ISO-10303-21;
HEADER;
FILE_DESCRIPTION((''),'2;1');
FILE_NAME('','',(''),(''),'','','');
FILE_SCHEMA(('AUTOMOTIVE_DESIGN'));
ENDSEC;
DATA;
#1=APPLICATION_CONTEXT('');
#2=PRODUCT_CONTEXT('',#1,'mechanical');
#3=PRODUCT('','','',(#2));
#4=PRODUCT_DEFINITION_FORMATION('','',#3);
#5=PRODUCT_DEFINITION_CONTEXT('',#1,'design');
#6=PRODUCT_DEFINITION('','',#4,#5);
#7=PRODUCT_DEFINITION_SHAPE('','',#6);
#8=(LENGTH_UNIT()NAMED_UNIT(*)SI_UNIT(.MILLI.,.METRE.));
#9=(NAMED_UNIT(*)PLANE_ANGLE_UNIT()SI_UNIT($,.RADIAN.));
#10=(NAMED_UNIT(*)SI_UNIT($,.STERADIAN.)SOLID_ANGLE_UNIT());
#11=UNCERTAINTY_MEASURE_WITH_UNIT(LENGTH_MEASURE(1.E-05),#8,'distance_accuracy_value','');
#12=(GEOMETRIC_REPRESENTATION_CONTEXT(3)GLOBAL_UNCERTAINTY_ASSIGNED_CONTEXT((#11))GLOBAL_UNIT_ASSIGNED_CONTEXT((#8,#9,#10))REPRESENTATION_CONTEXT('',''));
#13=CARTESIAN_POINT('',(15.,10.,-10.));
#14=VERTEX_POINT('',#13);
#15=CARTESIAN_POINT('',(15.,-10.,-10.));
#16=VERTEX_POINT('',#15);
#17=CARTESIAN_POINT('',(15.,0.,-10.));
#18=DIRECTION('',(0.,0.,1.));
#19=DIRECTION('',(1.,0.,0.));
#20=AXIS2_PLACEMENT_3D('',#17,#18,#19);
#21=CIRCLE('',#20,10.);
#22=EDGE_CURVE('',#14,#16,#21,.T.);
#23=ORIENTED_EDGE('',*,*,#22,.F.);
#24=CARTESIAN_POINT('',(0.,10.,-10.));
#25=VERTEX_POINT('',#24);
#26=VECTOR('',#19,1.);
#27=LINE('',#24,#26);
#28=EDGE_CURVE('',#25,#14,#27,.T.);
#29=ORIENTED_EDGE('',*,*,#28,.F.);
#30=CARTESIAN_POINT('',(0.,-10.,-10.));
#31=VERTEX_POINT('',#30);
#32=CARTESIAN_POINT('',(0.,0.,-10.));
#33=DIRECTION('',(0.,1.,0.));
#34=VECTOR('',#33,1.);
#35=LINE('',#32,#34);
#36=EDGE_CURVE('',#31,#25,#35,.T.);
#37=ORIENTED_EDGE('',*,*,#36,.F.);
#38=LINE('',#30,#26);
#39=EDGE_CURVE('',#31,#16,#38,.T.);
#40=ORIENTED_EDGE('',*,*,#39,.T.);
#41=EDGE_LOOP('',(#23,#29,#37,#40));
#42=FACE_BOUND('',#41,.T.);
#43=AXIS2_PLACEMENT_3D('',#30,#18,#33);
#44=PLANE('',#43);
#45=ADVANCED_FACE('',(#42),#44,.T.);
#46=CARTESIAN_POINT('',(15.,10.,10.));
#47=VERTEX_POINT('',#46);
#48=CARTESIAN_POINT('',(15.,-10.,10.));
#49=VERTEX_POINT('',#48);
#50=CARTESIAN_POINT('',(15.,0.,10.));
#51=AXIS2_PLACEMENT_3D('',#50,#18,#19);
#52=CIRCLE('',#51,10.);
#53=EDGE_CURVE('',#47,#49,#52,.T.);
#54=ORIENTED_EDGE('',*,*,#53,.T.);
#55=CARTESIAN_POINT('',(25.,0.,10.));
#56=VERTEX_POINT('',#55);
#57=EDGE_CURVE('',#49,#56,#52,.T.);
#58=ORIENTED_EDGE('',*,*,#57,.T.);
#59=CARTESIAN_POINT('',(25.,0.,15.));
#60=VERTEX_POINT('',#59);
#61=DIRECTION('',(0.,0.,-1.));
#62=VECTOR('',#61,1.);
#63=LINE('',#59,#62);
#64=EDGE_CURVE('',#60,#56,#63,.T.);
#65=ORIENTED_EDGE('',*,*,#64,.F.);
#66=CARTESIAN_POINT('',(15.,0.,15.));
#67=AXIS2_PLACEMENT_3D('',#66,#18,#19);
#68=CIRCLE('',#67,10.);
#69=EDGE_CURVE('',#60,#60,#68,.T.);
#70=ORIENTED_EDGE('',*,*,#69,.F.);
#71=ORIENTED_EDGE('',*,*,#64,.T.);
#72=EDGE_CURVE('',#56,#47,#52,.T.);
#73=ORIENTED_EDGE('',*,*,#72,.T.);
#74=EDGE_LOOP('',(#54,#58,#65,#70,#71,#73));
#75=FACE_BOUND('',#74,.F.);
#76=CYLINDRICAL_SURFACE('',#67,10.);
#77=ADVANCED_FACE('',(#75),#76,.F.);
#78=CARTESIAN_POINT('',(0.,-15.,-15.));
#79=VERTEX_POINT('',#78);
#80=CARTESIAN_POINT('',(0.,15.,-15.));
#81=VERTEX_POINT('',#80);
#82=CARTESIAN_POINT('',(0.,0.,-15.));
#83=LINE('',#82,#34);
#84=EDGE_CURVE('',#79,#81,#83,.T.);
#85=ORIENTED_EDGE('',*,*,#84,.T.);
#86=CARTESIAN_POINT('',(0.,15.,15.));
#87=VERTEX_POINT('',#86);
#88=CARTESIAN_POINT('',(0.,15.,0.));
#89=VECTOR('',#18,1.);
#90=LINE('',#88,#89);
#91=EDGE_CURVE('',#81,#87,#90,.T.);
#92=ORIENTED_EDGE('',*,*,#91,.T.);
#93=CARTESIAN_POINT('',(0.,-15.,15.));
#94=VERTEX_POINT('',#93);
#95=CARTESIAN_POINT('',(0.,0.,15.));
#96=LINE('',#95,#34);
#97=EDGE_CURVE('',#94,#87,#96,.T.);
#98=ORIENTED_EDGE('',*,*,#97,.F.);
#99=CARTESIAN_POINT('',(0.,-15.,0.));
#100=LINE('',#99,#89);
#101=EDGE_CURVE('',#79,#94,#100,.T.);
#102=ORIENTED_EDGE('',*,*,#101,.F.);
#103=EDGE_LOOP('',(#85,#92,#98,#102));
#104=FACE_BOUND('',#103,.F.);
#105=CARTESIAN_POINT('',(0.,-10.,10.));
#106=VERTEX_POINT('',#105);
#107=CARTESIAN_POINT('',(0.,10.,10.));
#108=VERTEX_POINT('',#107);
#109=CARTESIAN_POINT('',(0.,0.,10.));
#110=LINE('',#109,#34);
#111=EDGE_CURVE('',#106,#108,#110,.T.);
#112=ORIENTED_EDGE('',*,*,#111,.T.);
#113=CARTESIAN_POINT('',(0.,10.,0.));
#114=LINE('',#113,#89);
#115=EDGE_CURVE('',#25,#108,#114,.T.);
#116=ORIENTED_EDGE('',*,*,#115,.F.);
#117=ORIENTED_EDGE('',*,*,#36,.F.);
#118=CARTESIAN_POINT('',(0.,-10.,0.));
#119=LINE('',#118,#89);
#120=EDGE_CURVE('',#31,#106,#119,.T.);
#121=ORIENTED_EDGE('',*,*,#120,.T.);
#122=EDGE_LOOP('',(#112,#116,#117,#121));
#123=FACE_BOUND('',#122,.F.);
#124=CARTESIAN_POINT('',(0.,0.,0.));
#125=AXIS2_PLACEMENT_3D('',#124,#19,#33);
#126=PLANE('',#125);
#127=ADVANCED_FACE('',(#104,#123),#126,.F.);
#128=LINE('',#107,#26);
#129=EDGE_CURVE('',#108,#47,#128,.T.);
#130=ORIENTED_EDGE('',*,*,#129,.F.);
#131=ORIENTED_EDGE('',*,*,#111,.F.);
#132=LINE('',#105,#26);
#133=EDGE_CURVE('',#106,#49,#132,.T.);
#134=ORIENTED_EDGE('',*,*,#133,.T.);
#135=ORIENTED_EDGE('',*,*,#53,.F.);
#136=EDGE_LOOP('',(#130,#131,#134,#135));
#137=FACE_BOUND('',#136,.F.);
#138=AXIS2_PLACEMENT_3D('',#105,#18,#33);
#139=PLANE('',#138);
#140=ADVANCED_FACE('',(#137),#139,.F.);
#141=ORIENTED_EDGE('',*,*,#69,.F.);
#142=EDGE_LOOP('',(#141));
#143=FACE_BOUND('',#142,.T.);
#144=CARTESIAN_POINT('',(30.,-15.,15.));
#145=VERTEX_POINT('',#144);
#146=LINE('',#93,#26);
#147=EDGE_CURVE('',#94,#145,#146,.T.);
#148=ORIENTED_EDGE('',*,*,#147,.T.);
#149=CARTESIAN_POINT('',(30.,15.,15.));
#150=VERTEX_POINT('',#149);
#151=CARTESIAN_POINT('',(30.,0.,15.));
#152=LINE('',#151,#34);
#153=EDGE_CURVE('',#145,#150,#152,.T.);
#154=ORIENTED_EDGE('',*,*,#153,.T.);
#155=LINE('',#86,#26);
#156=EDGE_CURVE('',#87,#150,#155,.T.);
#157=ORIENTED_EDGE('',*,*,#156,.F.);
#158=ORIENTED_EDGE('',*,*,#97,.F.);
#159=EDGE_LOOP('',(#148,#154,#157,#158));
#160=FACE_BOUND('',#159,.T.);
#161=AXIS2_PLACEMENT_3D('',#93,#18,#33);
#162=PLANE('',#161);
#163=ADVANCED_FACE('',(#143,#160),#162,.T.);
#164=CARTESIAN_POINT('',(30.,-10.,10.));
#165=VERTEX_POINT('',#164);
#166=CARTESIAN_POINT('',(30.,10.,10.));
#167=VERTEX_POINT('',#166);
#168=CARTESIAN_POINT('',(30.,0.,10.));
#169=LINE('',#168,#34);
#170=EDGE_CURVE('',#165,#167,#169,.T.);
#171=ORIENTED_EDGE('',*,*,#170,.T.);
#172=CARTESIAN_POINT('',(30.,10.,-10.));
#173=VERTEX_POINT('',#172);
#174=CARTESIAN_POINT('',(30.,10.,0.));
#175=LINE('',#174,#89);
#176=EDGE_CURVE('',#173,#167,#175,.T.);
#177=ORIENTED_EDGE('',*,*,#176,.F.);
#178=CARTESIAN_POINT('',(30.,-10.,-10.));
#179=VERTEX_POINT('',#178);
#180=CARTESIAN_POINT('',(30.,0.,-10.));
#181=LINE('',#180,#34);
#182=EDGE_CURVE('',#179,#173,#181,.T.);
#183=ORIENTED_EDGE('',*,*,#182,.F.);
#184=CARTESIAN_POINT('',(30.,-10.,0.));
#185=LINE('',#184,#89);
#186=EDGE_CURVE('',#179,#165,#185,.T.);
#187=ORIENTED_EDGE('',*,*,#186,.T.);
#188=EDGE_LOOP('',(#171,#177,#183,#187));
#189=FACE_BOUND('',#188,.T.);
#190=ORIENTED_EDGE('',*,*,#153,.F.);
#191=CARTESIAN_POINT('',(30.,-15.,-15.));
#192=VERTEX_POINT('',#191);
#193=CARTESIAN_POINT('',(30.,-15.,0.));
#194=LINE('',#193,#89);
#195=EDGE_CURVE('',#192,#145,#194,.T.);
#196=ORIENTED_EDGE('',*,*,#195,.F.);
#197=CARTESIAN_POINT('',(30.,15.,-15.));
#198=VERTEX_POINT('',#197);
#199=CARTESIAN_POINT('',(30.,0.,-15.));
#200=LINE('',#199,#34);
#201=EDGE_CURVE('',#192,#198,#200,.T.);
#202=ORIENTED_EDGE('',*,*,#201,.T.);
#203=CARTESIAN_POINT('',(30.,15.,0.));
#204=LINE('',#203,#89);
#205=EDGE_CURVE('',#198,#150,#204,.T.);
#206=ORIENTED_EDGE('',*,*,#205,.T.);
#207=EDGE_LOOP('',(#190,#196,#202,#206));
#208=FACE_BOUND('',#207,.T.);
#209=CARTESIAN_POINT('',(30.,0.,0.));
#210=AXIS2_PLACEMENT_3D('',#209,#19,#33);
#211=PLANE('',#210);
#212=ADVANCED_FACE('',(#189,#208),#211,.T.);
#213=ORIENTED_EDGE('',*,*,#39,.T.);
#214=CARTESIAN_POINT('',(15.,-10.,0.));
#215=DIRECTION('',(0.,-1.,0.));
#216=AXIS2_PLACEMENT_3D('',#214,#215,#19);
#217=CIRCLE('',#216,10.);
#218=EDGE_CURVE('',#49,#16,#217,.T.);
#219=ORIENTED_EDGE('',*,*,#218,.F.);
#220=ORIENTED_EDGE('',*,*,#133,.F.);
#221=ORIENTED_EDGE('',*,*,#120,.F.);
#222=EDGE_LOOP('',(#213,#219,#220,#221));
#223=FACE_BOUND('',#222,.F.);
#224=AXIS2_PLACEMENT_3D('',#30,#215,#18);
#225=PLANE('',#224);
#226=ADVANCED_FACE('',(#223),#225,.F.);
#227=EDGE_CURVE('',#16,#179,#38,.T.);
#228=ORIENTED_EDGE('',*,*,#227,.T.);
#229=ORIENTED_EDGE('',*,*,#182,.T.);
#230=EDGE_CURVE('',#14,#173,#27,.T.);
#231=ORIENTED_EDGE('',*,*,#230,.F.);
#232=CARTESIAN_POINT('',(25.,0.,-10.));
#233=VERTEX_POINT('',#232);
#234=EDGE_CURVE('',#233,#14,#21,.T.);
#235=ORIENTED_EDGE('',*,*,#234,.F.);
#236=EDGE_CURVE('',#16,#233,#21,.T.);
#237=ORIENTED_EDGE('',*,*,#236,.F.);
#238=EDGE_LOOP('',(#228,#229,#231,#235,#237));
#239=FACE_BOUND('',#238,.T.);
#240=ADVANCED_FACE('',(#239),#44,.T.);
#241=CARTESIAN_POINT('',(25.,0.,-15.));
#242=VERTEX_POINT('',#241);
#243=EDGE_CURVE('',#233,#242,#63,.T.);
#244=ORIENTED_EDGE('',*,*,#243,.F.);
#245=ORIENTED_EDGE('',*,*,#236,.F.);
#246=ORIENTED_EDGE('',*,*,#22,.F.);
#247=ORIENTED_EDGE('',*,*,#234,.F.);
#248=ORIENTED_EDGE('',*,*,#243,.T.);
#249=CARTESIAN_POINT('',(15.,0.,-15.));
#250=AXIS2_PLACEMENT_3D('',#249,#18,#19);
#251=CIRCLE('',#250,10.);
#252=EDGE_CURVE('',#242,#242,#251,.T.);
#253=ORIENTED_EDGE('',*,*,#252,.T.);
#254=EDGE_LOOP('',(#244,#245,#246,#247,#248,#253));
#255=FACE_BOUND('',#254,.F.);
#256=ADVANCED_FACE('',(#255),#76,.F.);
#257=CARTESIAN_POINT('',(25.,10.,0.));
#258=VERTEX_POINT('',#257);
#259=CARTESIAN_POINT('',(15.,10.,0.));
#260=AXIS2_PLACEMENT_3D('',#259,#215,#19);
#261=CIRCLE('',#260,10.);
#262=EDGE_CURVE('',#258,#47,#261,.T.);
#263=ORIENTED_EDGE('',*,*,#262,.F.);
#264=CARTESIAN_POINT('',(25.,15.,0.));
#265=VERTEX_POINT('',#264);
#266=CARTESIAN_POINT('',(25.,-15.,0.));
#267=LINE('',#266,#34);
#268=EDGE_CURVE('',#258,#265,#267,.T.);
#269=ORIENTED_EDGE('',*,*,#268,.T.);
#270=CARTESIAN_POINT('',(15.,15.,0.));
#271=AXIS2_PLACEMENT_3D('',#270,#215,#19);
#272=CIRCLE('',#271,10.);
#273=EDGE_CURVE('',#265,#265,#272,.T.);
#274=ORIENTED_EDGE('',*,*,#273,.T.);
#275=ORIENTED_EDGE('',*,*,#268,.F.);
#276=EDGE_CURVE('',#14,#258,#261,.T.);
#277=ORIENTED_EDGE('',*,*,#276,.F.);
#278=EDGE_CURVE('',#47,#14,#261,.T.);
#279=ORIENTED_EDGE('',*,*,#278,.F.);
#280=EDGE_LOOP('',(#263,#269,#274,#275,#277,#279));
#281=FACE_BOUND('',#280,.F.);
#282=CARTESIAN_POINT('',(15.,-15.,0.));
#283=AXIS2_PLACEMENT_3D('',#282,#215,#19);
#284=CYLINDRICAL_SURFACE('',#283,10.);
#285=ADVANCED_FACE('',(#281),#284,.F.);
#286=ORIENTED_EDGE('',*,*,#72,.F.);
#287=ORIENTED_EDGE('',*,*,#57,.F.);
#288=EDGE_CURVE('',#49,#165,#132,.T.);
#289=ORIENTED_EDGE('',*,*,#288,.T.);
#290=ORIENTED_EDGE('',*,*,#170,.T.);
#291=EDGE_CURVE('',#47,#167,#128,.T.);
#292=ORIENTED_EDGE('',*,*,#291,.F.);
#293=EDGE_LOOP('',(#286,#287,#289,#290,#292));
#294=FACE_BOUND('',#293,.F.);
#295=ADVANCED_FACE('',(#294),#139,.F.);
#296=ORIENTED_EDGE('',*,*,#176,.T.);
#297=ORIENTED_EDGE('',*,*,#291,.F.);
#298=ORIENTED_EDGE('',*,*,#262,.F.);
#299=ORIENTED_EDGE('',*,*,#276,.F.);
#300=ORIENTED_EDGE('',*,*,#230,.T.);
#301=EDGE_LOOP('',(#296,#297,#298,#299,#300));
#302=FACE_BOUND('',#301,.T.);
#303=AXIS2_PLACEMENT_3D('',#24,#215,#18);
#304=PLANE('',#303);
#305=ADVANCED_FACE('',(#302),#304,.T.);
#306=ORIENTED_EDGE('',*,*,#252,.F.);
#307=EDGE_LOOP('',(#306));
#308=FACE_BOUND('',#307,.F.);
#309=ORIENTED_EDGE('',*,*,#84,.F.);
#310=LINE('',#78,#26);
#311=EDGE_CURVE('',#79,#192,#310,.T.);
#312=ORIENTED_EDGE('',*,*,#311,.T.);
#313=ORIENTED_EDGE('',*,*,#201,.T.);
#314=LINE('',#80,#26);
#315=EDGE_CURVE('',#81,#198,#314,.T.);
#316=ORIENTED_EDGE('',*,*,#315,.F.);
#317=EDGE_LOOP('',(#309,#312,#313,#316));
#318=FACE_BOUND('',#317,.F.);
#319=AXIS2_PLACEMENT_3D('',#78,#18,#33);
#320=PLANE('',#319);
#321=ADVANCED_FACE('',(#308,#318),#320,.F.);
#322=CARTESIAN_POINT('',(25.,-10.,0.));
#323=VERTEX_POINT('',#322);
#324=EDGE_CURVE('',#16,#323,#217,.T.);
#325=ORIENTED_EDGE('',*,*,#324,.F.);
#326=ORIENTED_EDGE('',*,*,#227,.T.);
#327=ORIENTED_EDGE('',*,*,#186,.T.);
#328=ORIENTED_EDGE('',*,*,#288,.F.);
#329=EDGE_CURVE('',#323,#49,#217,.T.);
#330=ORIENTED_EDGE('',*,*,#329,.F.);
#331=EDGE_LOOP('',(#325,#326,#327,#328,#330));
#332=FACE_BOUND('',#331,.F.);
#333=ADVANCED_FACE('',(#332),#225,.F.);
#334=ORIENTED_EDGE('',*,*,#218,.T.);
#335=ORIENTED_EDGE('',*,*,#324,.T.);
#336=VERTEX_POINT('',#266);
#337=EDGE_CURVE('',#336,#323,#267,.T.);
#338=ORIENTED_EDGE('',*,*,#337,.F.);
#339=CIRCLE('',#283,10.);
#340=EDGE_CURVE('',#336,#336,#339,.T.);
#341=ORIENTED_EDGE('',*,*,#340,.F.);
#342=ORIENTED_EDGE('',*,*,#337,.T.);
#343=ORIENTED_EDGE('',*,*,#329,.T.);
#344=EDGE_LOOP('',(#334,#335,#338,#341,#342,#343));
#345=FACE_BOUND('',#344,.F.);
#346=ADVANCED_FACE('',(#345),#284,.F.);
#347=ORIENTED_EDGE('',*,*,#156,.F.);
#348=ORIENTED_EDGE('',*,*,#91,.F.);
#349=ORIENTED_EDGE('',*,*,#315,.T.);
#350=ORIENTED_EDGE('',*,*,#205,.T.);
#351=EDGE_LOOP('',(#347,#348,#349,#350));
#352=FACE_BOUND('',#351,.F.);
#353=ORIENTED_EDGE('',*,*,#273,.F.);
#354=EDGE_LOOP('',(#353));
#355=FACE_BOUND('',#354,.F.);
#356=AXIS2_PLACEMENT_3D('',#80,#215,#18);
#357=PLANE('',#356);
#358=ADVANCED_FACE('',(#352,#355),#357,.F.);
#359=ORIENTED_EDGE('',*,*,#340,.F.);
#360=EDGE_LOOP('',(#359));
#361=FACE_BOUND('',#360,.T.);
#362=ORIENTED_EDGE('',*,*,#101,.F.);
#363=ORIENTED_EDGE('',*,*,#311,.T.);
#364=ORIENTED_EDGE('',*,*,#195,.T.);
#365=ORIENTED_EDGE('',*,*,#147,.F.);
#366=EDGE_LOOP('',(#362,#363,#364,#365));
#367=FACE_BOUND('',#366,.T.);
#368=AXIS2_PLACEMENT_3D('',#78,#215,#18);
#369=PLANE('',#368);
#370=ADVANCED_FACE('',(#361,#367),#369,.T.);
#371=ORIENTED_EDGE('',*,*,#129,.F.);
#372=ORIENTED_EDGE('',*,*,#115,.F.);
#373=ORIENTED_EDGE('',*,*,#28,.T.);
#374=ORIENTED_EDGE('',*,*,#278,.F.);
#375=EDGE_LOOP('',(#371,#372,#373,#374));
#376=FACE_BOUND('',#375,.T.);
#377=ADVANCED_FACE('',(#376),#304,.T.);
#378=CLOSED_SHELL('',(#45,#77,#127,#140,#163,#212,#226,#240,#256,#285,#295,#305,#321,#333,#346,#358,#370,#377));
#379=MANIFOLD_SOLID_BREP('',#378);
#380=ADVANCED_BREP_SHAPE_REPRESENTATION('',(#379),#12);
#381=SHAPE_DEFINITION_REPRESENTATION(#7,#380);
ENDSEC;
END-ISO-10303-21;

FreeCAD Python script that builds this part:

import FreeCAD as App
import Part
import Sketcher

doc = App.newDocument("Part")
body = doc.addObject("PartDesign::Body", "Body")

sketch1 = body.newObject("Sketcher::SketchObject", "Sketch")
sketch1.AttachmentSupport = (doc.getObject("YZ_Plane"), [""])
sketch1.MapMode = "FlatFace"
sketch1.addGeometry([
    Part.LineSegment(App.Vector(-15, 15, 0), App.Vector(-15, -15, 0)),
    Part.LineSegment(App.Vector(-15, -15, 0), App.Vector(15, -15, 0)),
    Part.LineSegment(App.Vector(15, -15, 0), App.Vector(15, 15, 0)),
    Part.LineSegment(App.Vector(15, 15, 0), App.Vector(-15, 15, 0)),
    Part.LineSegment(App.Vector(10, -10, 0), App.Vector(-10, -10, 0)),
    Part.LineSegment(App.Vector(-10, -10, 0), App.Vector(-10, 10, 0)),
    Part.LineSegment(App.Vector(-10, 10, 0), App.Vector(10, 10, 0)),
    Part.LineSegment(App.Vector(10, 10, 0), App.Vector(10, -10, 0)),
], False)
sketch1.addConstraint([
    Sketcher.Constraint("Coincident", 0, 2, 1, 1),
    Sketcher.Constraint("Coincident", 1, 2, 2, 1),
    Sketcher.Constraint("Coincident", 2, 2, 3, 1),
    Sketcher.Constraint("Coincident", 3, 2, 0, 1),
    Sketcher.Constraint("Coincident", 4, 2, 5, 1),
    Sketcher.Constraint("Coincident", 5, 2, 6, 1),
    Sketcher.Constraint("Coincident", 6, 2, 7, 1),
    Sketcher.Constraint("Coincident", 7, 2, 4, 1),
    Sketcher.Constraint("Vertical", 0),
    Sketcher.Constraint("Horizontal", 1),
    Sketcher.Constraint("Vertical", 2),
    Sketcher.Constraint("Horizontal", 3),
    Sketcher.Constraint("Horizontal", 4),
    Sketcher.Constraint("Vertical", 5),
    Sketcher.Constraint("Horizontal", 6),
    Sketcher.Constraint("Vertical", 7),
    Sketcher.Constraint("Symmetric", 0, 2, 2, 2, -1, 1),
    Sketcher.Constraint("Symmetric", 4, 2, 6, 2, -1, 1),
    Sketcher.Constraint("Equal", 3, 0),
    Sketcher.Constraint("Equal", 6, 5),
    Sketcher.Constraint("DistanceX", 1, 1, 1, 2, 30.0),
    Sketcher.Constraint("DistanceX", 4, 2, 4, 1, 20.0),
])
pad1 = body.newObject("PartDesign::Pad", "Pad")
pad1.Profile = sketch1
pad1.Length = 30

sketch2 = body.newObject("Sketcher::SketchObject", "Sketch001")
sketch2.AttachmentSupport = (doc.getObject("XZ_Plane"), [""])
sketch2.MapMode = "FlatFace"
sketch2.AttachmentOffset = App.Placement(App.Vector(0, 0, 15), App.Rotation())
sketch2.addGeometry(Part.Circle(App.Vector(15, 0, 0), App.Vector(0, 0, 1), 10), False)
sketch2.addConstraint([
    Sketcher.Constraint("PointOnObject", 0, 3, -1),
    Sketcher.Constraint("Diameter", 0, 20.0),
    Sketcher.Constraint("DistanceX", -1, 1, 0, 3, 15.0),
])
pocket1 = body.newObject("PartDesign::Pocket", "Pocket")
pocket1.Profile = sketch2
pocket1.Type = "ThroughAll"

sketch3 = body.newObject("Sketcher::SketchObject", "Sketch002")
sketch3.AttachmentSupport = (doc.getObject("XY_Plane"), [""])
sketch3.MapMode = "FlatFace"
sketch3.AttachmentOffset = App.Placement(App.Vector(0, 0, 15), App.Rotation())
sketch3.addGeometry(Part.Circle(App.Vector(15, 0, 0), App.Vector(0, 0, 1), 10), False)
sketch3.addConstraint([
    Sketcher.Constraint("PointOnObject", 0, 3, -1),
    Sketcher.Constraint("Diameter", 0, 20.0),
    Sketcher.Constraint("DistanceX", -1, 1, 0, 3, 15.0),
])
pocket2 = body.newObject("PartDesign::Pocket", "Pocket001")
pocket2.Profile = sketch3
pocket2.Type = "ThroughAll"

doc.recompute()
